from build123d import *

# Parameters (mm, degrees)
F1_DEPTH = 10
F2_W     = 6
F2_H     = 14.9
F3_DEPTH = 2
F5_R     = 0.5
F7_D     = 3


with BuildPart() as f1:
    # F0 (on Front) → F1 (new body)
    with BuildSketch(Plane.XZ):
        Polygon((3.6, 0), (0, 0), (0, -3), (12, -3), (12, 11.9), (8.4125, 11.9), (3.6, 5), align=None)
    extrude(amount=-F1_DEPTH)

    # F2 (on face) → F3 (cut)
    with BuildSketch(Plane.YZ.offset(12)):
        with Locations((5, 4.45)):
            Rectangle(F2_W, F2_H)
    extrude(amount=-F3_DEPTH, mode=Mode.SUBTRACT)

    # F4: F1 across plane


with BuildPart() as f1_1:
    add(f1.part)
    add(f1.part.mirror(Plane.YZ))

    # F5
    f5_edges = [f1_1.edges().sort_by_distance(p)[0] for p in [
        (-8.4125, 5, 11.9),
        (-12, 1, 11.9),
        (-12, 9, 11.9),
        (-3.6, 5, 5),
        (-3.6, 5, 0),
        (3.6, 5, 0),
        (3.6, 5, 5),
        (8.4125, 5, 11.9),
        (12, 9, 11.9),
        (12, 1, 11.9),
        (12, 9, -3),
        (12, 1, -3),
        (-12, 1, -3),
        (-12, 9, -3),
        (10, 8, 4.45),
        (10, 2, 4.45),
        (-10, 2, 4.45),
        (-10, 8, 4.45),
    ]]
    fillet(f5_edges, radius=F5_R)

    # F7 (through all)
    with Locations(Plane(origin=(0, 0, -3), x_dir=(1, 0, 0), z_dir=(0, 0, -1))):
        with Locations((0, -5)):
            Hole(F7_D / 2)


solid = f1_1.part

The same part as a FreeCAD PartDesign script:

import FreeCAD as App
import Part
import Sketcher


def edges_at(feature, points):
    """Names of the edges that pass closest to the given points."""
    edges = feature.Shape.Edges
    near = lambda p: min(range(len(edges)), key=lambda i: edges[i].distToShape(Part.Vertex(*p))[0])
    return sorted({f"Edge{near(p) + 1}" for p in points})

doc = App.newDocument("Part")
params = doc.addObject("Spreadsheet::Sheet", "Params")
for row, (alias, value) in enumerate([
    ("sketch1_width", "12 mm"),
    ("sketch1_height", "3 mm"),
    ("sketch1_height2", "5 mm"),
    ("sketch1_width2", "3.6 mm"),
    ("sketch1_height3", "14.9 mm"),
    ("pad1_length", "10 mm"),
    ("sketch2_width", "6 mm"),
    ("sketch2_height", "14.9 mm"),
    ("pocket1_length", "2 mm"),
    ("fillet_radius", "0.5 mm"),
    ("sketch3_diameter", "3 mm"),
    ("hole_diameter", "3 mm"),
], start=1):
    params.set(f"A{row}", alias)
    params.set(f"B{row}", "=" + value)
    params.setAlias(f"B{row}", alias)

body = doc.addObject("PartDesign::Body", "Body")

# Sketch on XZ plane
sketch1 = body.newObject("Sketcher::SketchObject", "Sketch")
sketch1.AttachmentSupport = (doc.getObject("XZ_Plane"), [""])
sketch1.MapMode = "FlatFace"
sketch1.addGeometry([
    Part.LineSegment(App.Vector(3.6, 0, 0), App.Vector(0, 0, 0)),  # 0
    Part.LineSegment(App.Vector(0, 0, 0), App.Vector(0, -3, 0)),  # 1
    Part.LineSegment(App.Vector(0, -3, 0), App.Vector(12, -3, 0)),  # 2
    Part.LineSegment(App.Vector(12, -3, 0), App.Vector(12, 11.9, 0)),  # 3
    Part.LineSegment(App.Vector(12, 11.9, 0), App.Vector(8.4, 11.9, 0)),  # 4
    Part.LineSegment(App.Vector(8.4, 11.9, 0), App.Vector(3.6, 5, 0)),  # 5
    Part.LineSegment(App.Vector(3.6, 5, 0), App.Vector(3.6, 0, 0)),  # 6
], False)
sketch1.addConstraint([
    Sketcher.Constraint("Coincident", 0, 2, 1, 1),
    Sketcher.Constraint("Coincident", 1, 2, 2, 1),
    Sketcher.Constraint("Coincident", 2, 2, 3, 1),
    Sketcher.Constraint("Coincident", 3, 2, 4, 1),
    Sketcher.Constraint("Coincident", 4, 2, 5, 1),
    Sketcher.Constraint("Coincident", 5, 2, 6, 1),
    Sketcher.Constraint("Coincident", 6, 2, 0, 1),
    Sketcher.Constraint("Horizontal", 0),
    Sketcher.Constraint("Vertical", 1),
    Sketcher.Constraint("Horizontal", 2),
    Sketcher.Constraint("Vertical", 3),
    Sketcher.Constraint("Horizontal", 4),
    Sketcher.Constraint("Vertical", 6),
    Sketcher.Constraint("Coincident", 0, 2, -1, 1),
    Sketcher.Constraint("DistanceX", 2, 1, 2, 2, 12.0),
    Sketcher.Constraint("DistanceY", 1, 2, 1, 1, 3.0),
    Sketcher.Constraint("DistanceY", 6, 2, 6, 1, 5.0),
    Sketcher.Constraint("DistanceX", 0, 2, 0, 1, 3.6),
    Sketcher.Constraint("DistanceY", 3, 1, 3, 2, 14.9),
    Sketcher.Constraint("DistanceX", 4, 2, 4, 1, 3.5875),
])
sketch1.setExpression("Constraints[14]", "Params.sketch1_width")
sketch1.setExpression("Constraints[15]", "Params.sketch1_height")
sketch1.setExpression("Constraints[16]", "Params.sketch1_height2")
sketch1.setExpression("Constraints[17]", "Params.sketch1_width2")
sketch1.setExpression("Constraints[18]", "Params.sketch1_height3")
pad1 = body.newObject("PartDesign::Pad", "Pad")
pad1.Profile = sketch1
pad1.setExpression("Length", "Params.pad1_length")
pad1.Reversed = True

# Sketch on YZ plane
sketch2 = body.newObject("Sketcher::SketchObject", "Sketch001")
sketch2.AttachmentSupport = (doc.getObject("YZ_Plane"), [""])
sketch2.MapMode = "FlatFace"
sketch2.AttachmentOffset = App.Placement(App.Vector(0, 0, 12), App.Rotation())
sketch2.addGeometry([
    Part.LineSegment(App.Vector(2, 12, 0), App.Vector(2, -3, 0)),
    Part.LineSegment(App.Vector(2, -3, 0), App.Vector(8, -3, 0)),
    Part.LineSegment(App.Vector(8, -3, 0), App.Vector(8, 12, 0)),
    Part.LineSegment(App.Vector(8, 12, 0), App.Vector(2, 12, 0)),
], False)
sketch2.addConstraint([
    Sketcher.Constraint("Coincident", 0, 2, 1, 1),
    Sketcher.Constraint("Coincident", 1, 2, 2, 1),
    Sketcher.Constraint("Coincident", 2, 2, 3, 1),
    Sketcher.Constraint("Coincident", 3, 2, 0, 1),
    Sketcher.Constraint("Vertical", 0),
    Sketcher.Constraint("Horizontal", 1),
    Sketcher.Constraint("Vertical", 2),
    Sketcher.Constraint("Horizontal", 3),
    Sketcher.Constraint("DistanceX", 1, 1, 1, 2, 6.0),
    Sketcher.Constraint("DistanceY", 0, 2, 0, 1, 14.9),
    Sketcher.Constraint("DistanceX", -1, 1, 0, 2, 2.0),
    Sketcher.Constraint("DistanceY", 0, 2, -1, 1, 3.0),
])
sketch2.setExpression("Constraints[8]", "Params.sketch2_width")
sketch2.setExpression("Constraints[9]", "Params.sketch2_height")
pocket1 = body.newObject("PartDesign::Pocket", "Pocket")
pocket1.Profile = sketch2
pocket1.setExpression("Length", "Params.pocket1_length")
body2 = doc.addObject("PartDesign::Body", "Body001")
doc.recompute()

body2.BaseFeature = body
doc.recompute()

mirroring = doc.addObject("Part::Mirroring", "Mirroring")
mirroring.Source = body
mirroring.Base = App.Vector(0, 0, 0)
mirroring.Normal = App.Vector(1, 0, 0)
body3 = doc.addObject("PartDesign::Body", "Body002")
body3.BaseFeature = mirroring
boolean = body2.newObject("PartDesign::Boolean", "Boolean")
boolean.Type = "Fuse"
boolean.addObjects([body3])
doc.recompute()

fillet = body2.newObject("PartDesign::Fillet", "Fillet")
fillet.Base = (boolean, edges_at(boolean, [
    (-8.412, 5, 11.9),
    (-12, 1, 11.9),
    (-12, 9, 11.9),
    (-3.6, 5, 5),
    (-3.6, 5, 0),
    (3.6, 5, 0),
    (3.6, 5, 5),
    (8.412, 5, 11.9),
    (12, 9, 11.9),
    (12, 1, 11.9),
    (12, 9, -3),
    (12, 1, -3),
    (-12, 1, -3),
    (-12, 9, -3),
    (10, 8, 4.45),
    (10, 2, 4.45),
    (-10, 2, 4.45),
    (-10, 8, 4.45),
]))
fillet.setExpression("Radius", "Params.fillet_radius")

# Sketch on XY plane
sketch3 = body2.newObject("Sketcher::SketchObject", "Sketch002")
sketch3.AttachmentSupport = (doc.getObject("XY_Plane001"), [""])
sketch3.MapMode = "FlatFace"
sketch3.AttachmentOffset = App.Placement(App.Vector(0, 0, -3), App.Rotation())
sketch3.addGeometry(Part.Circle(App.Vector(0, 5, 0), App.Vector(0, 0, 1), 1.5), False)
sketch3.addConstraint([
    Sketcher.Constraint("PointOnObject", 0, 3, -2),
    Sketcher.Constraint("Diameter", 0, 3.0),
    Sketcher.Constraint("DistanceY", -1, 1, 0, 3, 5.0),
])
sketch3.setExpression("Constraints[1]", "Params.sketch3_diameter")
doc.recompute()
hole = body2.newObject("PartDesign::Hole", "Hole")
hole.Profile = sketch3
hole.ThreadType = "None"
hole.setExpression("Diameter", "Params.hole_diameter")
hole.DepthType = "ThroughAll"
hole.Reversed = True
mirroring.Visibility = False

doc.recompute()
